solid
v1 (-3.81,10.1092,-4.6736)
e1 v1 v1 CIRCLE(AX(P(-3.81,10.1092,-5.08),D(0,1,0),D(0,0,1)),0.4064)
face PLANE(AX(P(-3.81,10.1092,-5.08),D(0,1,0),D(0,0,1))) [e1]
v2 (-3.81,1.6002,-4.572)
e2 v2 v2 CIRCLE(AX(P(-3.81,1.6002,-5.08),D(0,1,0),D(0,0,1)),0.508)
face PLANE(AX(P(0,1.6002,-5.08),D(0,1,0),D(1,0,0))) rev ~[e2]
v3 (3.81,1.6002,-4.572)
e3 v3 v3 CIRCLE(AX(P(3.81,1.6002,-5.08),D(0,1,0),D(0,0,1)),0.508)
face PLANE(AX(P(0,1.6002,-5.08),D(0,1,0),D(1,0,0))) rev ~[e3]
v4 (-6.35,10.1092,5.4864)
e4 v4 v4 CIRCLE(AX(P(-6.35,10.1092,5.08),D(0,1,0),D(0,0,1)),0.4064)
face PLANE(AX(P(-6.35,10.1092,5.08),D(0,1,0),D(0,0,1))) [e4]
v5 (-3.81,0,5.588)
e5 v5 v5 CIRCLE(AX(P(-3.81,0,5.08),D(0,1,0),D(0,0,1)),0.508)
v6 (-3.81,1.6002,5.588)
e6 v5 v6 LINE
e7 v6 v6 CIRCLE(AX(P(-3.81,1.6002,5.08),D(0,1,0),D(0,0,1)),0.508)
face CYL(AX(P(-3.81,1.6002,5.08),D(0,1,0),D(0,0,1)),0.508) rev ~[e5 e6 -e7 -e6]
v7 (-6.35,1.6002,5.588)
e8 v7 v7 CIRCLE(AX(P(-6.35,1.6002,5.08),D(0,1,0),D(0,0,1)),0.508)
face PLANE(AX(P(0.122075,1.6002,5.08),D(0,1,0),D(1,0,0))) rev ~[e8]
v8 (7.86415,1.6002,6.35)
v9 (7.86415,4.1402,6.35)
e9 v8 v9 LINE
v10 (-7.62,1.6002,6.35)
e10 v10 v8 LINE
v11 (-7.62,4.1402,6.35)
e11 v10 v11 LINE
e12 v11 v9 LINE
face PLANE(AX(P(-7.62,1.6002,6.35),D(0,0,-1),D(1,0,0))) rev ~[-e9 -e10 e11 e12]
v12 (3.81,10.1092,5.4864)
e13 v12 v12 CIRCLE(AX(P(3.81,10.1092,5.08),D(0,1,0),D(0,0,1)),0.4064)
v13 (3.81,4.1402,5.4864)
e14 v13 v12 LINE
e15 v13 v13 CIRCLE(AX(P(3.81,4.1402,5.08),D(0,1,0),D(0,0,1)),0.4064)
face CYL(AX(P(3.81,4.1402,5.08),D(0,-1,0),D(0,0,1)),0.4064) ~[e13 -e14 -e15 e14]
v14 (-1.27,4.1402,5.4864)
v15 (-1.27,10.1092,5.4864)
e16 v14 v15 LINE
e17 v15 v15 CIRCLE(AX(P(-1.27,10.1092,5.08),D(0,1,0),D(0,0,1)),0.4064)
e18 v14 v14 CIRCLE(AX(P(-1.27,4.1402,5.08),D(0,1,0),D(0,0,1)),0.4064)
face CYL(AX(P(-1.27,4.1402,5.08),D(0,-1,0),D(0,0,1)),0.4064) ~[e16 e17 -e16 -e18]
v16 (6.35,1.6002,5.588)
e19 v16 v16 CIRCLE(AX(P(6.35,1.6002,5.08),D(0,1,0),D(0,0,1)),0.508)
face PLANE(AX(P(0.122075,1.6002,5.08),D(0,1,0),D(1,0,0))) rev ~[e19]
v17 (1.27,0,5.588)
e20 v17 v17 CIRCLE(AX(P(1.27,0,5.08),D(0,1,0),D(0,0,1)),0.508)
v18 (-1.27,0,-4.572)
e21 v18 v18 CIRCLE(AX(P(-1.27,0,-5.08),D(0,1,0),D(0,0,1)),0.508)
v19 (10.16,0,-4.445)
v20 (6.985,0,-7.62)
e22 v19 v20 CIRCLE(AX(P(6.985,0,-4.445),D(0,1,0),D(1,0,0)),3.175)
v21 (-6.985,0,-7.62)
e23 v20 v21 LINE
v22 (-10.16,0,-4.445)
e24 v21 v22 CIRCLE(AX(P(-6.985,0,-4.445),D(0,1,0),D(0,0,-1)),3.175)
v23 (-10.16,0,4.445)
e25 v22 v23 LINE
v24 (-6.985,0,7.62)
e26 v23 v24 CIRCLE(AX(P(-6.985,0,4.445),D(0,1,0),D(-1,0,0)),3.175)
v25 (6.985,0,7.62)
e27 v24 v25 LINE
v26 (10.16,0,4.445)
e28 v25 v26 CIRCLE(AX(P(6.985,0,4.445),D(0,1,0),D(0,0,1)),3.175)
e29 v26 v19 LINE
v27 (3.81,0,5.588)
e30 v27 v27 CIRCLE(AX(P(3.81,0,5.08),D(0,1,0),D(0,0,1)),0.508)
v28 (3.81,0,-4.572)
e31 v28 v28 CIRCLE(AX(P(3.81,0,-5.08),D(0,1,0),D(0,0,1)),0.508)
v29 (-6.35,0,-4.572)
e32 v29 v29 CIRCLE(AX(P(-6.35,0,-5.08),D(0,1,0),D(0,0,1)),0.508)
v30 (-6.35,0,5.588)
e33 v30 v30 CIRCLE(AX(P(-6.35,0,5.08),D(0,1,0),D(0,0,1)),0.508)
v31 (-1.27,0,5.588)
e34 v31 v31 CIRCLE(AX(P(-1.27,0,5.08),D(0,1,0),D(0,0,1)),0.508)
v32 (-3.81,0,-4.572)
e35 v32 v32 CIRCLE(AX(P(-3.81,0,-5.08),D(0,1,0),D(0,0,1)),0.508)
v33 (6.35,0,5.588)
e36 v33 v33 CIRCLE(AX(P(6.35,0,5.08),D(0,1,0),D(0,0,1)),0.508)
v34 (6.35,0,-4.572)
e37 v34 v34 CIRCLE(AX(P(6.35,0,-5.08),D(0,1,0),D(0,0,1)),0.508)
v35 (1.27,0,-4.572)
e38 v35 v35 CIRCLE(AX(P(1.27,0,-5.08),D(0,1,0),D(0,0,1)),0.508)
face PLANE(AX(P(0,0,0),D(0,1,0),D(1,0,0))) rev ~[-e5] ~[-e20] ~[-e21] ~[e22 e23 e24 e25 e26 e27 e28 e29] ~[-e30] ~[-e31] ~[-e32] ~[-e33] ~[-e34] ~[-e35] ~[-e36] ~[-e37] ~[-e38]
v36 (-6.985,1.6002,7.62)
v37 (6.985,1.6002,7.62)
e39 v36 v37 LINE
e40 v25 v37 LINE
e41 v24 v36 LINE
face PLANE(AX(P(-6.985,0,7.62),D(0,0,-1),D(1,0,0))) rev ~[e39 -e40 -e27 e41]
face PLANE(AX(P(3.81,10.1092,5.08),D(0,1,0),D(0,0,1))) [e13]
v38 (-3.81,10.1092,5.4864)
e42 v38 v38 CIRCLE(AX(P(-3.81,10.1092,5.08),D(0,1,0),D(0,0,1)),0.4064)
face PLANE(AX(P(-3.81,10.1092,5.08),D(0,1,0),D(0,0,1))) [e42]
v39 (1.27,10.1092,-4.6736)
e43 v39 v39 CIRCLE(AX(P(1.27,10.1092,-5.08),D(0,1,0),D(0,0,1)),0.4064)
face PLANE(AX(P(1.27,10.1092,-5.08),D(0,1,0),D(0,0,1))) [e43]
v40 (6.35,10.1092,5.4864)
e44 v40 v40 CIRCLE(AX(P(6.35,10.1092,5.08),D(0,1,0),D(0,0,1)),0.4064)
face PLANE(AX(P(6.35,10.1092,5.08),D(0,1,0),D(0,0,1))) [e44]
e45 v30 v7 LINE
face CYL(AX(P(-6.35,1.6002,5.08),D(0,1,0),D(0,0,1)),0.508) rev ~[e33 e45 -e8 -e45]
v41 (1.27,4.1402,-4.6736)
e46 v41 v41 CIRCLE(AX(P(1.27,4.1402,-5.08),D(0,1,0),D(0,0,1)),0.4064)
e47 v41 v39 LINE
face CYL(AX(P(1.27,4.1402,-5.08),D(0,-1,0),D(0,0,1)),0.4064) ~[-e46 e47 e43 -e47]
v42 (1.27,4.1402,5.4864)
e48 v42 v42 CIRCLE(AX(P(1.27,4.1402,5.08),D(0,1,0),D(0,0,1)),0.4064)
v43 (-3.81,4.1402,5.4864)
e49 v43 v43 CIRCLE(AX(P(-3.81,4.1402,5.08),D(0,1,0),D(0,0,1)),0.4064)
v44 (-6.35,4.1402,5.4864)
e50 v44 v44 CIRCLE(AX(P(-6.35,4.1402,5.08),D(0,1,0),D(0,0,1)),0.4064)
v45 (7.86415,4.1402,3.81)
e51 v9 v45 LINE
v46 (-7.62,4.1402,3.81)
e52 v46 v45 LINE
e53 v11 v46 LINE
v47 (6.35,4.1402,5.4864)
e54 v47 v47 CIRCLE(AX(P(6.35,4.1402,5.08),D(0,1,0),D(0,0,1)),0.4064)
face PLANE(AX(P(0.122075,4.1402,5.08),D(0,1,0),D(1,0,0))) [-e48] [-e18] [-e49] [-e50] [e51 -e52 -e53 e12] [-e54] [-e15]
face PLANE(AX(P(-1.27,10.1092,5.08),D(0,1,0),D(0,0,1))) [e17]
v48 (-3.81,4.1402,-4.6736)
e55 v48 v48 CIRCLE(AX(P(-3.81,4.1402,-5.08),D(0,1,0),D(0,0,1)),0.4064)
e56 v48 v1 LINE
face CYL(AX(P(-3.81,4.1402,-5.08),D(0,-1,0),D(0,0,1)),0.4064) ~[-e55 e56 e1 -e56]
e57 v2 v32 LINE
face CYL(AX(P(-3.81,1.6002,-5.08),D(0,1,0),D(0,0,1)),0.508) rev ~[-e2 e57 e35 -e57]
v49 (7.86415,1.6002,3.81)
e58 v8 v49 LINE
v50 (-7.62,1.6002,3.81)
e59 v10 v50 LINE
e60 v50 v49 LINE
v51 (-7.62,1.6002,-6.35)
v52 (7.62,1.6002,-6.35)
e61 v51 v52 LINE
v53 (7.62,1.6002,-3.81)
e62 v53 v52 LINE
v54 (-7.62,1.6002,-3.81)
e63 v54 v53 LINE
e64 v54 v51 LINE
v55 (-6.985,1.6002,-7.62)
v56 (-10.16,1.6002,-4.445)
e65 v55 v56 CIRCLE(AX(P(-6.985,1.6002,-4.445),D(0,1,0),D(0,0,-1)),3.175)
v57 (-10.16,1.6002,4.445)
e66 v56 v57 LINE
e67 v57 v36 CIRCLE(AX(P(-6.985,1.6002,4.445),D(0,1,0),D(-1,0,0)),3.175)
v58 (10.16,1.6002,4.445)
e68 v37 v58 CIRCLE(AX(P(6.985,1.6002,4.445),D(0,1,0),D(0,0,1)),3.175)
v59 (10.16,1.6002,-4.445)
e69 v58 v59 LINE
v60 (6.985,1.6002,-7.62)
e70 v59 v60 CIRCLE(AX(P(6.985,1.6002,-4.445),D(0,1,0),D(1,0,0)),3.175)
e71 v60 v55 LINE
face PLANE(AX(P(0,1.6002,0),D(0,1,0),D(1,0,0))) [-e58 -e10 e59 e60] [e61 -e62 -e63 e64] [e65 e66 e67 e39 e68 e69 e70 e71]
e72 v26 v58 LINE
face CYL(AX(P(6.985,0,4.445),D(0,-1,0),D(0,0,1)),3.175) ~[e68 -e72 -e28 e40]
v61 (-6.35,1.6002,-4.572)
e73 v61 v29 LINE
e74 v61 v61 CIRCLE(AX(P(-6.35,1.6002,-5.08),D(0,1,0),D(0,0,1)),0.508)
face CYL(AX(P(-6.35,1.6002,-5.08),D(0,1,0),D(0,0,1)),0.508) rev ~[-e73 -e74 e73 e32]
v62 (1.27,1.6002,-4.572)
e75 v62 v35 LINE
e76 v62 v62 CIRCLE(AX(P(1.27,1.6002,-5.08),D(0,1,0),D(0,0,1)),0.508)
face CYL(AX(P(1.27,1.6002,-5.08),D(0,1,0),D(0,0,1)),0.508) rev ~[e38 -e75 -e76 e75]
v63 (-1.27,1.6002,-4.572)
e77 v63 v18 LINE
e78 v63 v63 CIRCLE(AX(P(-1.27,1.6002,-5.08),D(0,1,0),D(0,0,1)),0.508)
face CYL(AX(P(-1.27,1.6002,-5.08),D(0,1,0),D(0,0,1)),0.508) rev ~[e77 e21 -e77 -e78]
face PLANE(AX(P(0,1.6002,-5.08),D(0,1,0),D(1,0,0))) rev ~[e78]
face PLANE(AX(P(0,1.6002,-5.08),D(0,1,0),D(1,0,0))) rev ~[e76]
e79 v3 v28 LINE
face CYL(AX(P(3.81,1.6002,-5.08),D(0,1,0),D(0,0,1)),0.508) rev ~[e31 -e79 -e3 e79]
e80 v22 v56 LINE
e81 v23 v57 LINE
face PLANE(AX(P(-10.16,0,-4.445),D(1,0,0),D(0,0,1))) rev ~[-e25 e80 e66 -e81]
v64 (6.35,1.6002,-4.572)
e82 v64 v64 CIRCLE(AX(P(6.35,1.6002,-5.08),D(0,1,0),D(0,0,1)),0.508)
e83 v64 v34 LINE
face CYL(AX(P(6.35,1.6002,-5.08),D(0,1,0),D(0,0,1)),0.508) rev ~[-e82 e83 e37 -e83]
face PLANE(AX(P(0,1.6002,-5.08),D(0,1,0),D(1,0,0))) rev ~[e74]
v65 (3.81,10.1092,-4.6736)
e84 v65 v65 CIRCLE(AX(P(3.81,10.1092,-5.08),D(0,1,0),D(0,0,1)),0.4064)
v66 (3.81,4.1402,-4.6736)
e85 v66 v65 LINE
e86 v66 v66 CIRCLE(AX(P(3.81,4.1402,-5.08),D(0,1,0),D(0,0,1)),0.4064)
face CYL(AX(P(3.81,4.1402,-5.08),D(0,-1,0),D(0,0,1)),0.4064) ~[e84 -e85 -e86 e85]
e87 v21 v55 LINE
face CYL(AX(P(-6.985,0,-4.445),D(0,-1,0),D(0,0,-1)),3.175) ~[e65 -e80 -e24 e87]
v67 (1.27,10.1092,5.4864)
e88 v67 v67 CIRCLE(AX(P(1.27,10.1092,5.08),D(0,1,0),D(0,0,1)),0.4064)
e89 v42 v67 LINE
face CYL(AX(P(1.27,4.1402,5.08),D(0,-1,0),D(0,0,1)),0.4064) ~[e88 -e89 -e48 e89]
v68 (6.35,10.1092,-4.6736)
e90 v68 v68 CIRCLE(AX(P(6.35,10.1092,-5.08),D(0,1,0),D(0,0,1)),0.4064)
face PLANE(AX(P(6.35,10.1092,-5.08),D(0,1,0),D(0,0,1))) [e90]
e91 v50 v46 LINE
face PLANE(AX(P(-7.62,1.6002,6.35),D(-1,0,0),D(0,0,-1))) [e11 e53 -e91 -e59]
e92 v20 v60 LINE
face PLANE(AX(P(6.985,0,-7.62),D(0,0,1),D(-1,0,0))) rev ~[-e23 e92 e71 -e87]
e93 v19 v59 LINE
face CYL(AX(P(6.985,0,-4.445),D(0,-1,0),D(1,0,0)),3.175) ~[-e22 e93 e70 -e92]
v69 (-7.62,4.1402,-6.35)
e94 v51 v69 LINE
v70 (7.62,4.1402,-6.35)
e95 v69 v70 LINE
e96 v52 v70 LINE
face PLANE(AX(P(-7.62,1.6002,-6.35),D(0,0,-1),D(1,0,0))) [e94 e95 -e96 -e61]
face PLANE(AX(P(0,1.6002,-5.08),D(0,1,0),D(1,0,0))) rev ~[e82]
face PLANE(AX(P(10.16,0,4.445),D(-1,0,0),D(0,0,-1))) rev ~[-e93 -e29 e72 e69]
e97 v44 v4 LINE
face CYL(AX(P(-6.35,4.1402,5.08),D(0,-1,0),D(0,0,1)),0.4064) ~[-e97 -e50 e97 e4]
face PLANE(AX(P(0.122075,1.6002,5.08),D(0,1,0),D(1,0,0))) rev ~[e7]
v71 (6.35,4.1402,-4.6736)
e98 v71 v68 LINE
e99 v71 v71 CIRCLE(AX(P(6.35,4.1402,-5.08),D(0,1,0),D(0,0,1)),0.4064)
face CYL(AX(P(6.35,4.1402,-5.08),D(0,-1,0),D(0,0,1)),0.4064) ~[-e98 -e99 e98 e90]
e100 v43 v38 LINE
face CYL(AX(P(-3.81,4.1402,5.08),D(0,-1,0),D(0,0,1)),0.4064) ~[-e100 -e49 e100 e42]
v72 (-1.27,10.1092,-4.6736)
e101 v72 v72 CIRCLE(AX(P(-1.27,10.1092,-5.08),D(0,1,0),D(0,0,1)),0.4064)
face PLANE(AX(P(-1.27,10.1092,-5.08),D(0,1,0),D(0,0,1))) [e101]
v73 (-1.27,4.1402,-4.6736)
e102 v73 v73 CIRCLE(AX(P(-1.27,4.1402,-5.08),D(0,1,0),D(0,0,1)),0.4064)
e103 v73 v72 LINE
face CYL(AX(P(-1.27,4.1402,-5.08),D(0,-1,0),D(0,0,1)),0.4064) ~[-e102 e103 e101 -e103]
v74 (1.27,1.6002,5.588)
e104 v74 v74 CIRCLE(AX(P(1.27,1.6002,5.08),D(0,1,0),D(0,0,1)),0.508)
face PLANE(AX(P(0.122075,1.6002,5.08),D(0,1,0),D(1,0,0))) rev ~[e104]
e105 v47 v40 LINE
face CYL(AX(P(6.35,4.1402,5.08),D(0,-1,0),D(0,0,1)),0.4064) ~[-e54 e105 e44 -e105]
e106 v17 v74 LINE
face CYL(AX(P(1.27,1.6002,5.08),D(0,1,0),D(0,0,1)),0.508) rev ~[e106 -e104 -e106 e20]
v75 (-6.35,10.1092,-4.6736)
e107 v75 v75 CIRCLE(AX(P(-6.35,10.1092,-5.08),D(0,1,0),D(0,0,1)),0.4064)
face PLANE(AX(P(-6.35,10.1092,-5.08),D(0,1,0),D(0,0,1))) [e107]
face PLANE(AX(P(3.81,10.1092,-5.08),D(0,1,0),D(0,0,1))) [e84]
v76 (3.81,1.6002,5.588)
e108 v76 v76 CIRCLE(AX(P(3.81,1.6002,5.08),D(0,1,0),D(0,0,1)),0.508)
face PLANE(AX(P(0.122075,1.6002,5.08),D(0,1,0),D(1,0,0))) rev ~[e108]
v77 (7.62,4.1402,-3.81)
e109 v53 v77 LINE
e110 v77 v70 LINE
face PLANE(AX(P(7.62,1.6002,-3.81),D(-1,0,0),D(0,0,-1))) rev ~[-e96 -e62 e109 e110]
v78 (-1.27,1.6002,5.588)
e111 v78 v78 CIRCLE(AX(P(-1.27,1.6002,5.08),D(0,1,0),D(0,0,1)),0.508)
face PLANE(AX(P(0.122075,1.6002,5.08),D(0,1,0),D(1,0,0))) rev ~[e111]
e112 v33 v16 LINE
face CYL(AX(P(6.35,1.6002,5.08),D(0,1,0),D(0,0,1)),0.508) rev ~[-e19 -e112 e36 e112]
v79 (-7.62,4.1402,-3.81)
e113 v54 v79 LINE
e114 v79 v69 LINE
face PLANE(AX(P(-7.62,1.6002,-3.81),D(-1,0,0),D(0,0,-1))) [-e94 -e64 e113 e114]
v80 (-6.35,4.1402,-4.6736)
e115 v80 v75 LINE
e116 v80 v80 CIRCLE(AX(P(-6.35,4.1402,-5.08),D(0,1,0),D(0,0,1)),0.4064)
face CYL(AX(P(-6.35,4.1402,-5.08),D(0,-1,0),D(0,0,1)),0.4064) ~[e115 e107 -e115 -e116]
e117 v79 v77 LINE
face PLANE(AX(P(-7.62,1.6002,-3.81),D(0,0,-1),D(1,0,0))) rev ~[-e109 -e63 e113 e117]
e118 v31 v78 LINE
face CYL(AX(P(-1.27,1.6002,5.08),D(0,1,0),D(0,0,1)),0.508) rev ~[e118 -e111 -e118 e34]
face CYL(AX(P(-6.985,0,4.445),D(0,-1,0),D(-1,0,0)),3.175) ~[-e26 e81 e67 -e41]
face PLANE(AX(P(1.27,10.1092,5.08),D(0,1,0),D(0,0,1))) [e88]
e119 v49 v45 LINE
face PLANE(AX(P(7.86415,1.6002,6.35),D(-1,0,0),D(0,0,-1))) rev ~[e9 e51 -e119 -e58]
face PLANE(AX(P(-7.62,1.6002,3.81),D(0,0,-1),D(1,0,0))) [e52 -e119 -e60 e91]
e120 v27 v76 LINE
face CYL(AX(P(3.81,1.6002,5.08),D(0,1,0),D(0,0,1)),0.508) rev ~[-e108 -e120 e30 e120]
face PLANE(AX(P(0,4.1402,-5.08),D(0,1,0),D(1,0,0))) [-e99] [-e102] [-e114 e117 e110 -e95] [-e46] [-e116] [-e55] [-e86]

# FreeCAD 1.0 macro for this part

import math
import FreeCAD as App
import Part
import Sketcher
from FreeCAD import Vector
Q = App.Units.Quantity

doc = App.newDocument("Part")
body = doc.addObject("PartDesign::Body", "Body")

sketch1 = body.newObject("Sketcher::SketchObject", "Sketch")
sketch1.AttachmentSupport = (doc.getObject("XZ_Plane"), [""])
sketch1.MapMode = "FlatFace"
sketch1.addGeometry([
    Part.LineSegment(Vector(-7, 7.6, 0), Vector(7, 7.6, 0)),
    Part.ArcOfCircle(Part.Circle(Vector(7, 4.4, 0), Vector(0, 0, 1), 3.2), math.radians(0), math.radians(90)),
    Part.LineSegment(Vector(10.2, 4.4, 0), Vector(10.2, -4.4, 0)),
    Part.ArcOfCircle(Part.Circle(Vector(7, -4.4, 0), Vector(0, 0, 1), 3.2), math.radians(-90), math.radians(0)),
    Part.LineSegment(Vector(7, -7.6, 0), Vector(-7, -7.6, 0)),
    Part.ArcOfCircle(Part.Circle(Vector(-7, -4.4, 0), Vector(0, 0, 1), 3.2), math.radians(-180), math.radians(-90)),
    Part.LineSegment(Vector(-10.2, -4.4, 0), Vector(-10.2, 4.4, 0)),
    Part.ArcOfCircle(Part.Circle(Vector(-7, 4.4, 0), Vector(0, 0, 1), 3.2), math.radians(90), math.radians(180)),
], False)
sketch1.addConstraint([
    Sketcher.Constraint("Tangent", 0, 2, 1, 2),
    Sketcher.Constraint("Tangent", 1, 1, 2, 1),
    Sketcher.Constraint("Tangent", 2, 2, 3, 2),
    Sketcher.Constraint("Tangent", 3, 1, 4, 1),
    Sketcher.Constraint("Tangent", 4, 2, 5, 2),
    Sketcher.Constraint("Tangent", 5, 1, 6, 1),
    Sketcher.Constraint("Tangent", 6, 2, 7, 2),
    Sketcher.Constraint("Tangent", 7, 1, 0, 1),
    Sketcher.Constraint("Horizontal", 0),
    Sketcher.Constraint("Vertical", 2),
    Sketcher.Constraint("Horizontal", 4),
    Sketcher.Constraint("Vertical", 6),
    Sketcher.Constraint("Equal", 1, 3),
    Sketcher.Constraint("Equal", 3, 5),
    Sketcher.Constraint("Equal", 5, 7),
    Sketcher.Constraint("Symmetric", 1, 3, 5, 3, -1, 1),
    Sketcher.Constraint("Radius", 1, Q("0.125 in")),
    Sketcher.Constraint("DistanceX", 0, 1, 0, 2, Q("0.55 in")),
    Sketcher.Constraint("DistanceY", 2, 2, 2, 1, Q("0.35 in")),
])
pad1 = body.newObject("PartDesign::Pad", "Pad")
pad1.Profile = sketch1
pad1.Length = Q("0.063 in")
pad1.Reversed = True

sketch2 = body.newObject("Sketcher::SketchObject", "Sketch001")
sketch2.AttachmentSupport = (doc.getObject("XZ_Plane"), [""])
sketch2.MapMode = "FlatFace"
sketch2.AttachmentOffset = App.Placement(Vector(0, 0, -0.063 * 25.4), App.Rotation())
sketch2.addGeometry([
    Part.Circle(Vector(-6.3, -5.1, 0), Vector(0, 0, 1), 0.5),
    Part.Circle(Vector(-6.3, 5.1, 0), Vector(0, 0, 1), 0.5),
], False)
sketch2.addConstraint([
    Sketcher.Constraint("Equal", 0, 1),
    Sketcher.Constraint("Symmetric", 0, 3, 1, 3, -1),
    Sketcher.Constraint("Diameter", 0, Q("0.04 in")),
    Sketcher.Constraint("DistanceY", 0, 3, -1, 1, Q("0.2 in")),
    Sketcher.Constraint("DistanceX", 0, 3, -1, 1, Q("0.25 in")),
])
pocket1 = body.newObject("PartDesign::Pocket", "Pocket")
pocket1.Profile = sketch2
pocket1.Length = 27.600831
pocket1.Midplane = True
doc.recompute()

linearpattern = body.newObject("PartDesign::LinearPattern", "LinearPattern")
linearpattern.Originals = [pocket1]
linearpattern.Direction = (doc.getObject("X_Axis"), [""])
linearpattern.Mode = "offset"
linearpattern.Offset = Q("0.1 in")
linearpattern.Occurrences = 6
body.Tip = linearpattern

sketch3 = body.newObject("Sketcher::SketchObject", "Sketch002")
sketch3.AttachmentSupport = (doc.getObject("XZ_Plane"), [""])
sketch3.MapMode = "FlatFace"
sketch3.AttachmentOffset = App.Placement(Vector(0, 0, -0.063 * 25.4), App.Rotation())
sketch3.addGeometry([
    Part.LineSegment(Vector(-7.6, -6.3, 0), Vector(-7.6, -3.8, 0)),
    Part.LineSegment(Vector(-7.6, -3.8, 0), Vector(7.6, -3.8, 0)),
    Part.LineSegment(Vector(7.6, -3.8, 0), Vector(7.6, -6.3, 0)),
    Part.LineSegment(Vector(7.6, -6.3, 0), Vector(-7.6, -6.3, 0)),
    Part.LineSegment(Vector(-7.6, 3.8, 0), Vector(-7.6, 6.3, 0)),
    Part.LineSegment(Vector(-7.6, 6.3, 0), Vector(7.9, 6.3, 0)),
    Part.LineSegment(Vector(7.9, 6.3, 0), Vector(7.9, 3.8, 0)),
    Part.LineSegment(Vector(7.9, 3.8, 0), Vector(-7.6, 3.8, 0)),
], False)
sketch3.addConstraint([
    Sketcher.Constraint("Coincident", 0, 2, 1, 1),
    Sketcher.Constraint("Coincident", 1, 2, 2, 1),
    Sketcher.Constraint("Coincident", 2, 2, 3, 1),
    Sketcher.Constraint("Coincident", 3, 2, 0, 1),
    Sketcher.Constraint("Coincident", 4, 2, 5, 1),
    Sketcher.Constraint("Coincident", 5, 2, 6, 1),
    Sketcher.Constraint("Coincident", 6, 2, 7, 1),
    Sketcher.Constraint("Coincident", 7, 2, 4, 1),
    Sketcher.Constraint("Vertical", 0),
    Sketcher.Constraint("Horizontal", 1),
    Sketcher.Constraint("Vertical", 2),
    Sketcher.Constraint("Horizontal", 3),
    Sketcher.Constraint("Vertical", 4),
    Sketcher.Constraint("Horizontal", 5),
    Sketcher.Constraint("Vertical", 6),
    Sketcher.Constraint("Horizontal", 7),
    Sketcher.Constraint("Symmetric", 2, 2, 4, 2, -1, 1),
    Sketcher.Constraint("Symmetric", 0, 2, 7, 2, -1),
    Sketcher.Constraint("DistanceX", 1, 1, 1, 2, Q("0.6 in")),
    Sketcher.Constraint("DistanceY", 0, 1, 0, 2, Q("0.1 in")),
    Sketcher.Constraint("DistanceY", 0, 2, 4, 2, Q("0.4 in")),
    Sketcher.Constraint("DistanceX", 5, 1, 5, 2, 15.48415),
])
pad2 = body.newObject("PartDesign::Pad", "Pad001")
pad2.Profile = sketch3
pad2.Length = Q("0.1 in")
pad2.Reversed = True

sketch4 = body.newObject("Sketcher::SketchObject", "Sketch003")
sketch4.AttachmentSupport = (doc.getObject("XZ_Plane"), [""])
sketch4.MapMode = "FlatFace"
sketch4.AttachmentOffset = App.Placement(Vector(0, 0, -0.163 * 25.4), App.Rotation())
sketch4.addGeometry([
    Part.Circle(Vector(-6.35, -5.08, 0), Vector(0, 0, 1), 0.41),
    Part.Circle(Vector(-6.35, 5.08, 0), Vector(0, 0, 1), 0.41),
], False)
sketch4.addConstraint([
    Sketcher.Constraint("Equal", 0, 1),
    Sketcher.Constraint("Symmetric", 0, 3, 1, 3, -1),
    Sketcher.Constraint("Diameter", 0, Q("0.032 in")),
    Sketcher.Constraint("DistanceY", 0, 3, -1, 1, Q("0.2 in")),
    Sketcher.Constraint("DistanceX", 0, 3, -1, 1, Q("0.25 in")),
])
pad3 = body.newObject("PartDesign::Pad", "Pad002")
pad3.Profile = sketch4
pad3.Length = Q("0.235 in")
pad3.Reversed = True
doc.recompute()

linearpattern2 = body.newObject("PartDesign::LinearPattern", "LinearPattern001")
linearpattern2.Originals = [pad3]
linearpattern2.Direction = (doc.getObject("X_Axis"), [""])
linearpattern2.Mode = "offset"
linearpattern2.Offset = Q("0.1 in")
linearpattern2.Occurrences = 6
body.Tip = linearpattern2

doc.recompute()
